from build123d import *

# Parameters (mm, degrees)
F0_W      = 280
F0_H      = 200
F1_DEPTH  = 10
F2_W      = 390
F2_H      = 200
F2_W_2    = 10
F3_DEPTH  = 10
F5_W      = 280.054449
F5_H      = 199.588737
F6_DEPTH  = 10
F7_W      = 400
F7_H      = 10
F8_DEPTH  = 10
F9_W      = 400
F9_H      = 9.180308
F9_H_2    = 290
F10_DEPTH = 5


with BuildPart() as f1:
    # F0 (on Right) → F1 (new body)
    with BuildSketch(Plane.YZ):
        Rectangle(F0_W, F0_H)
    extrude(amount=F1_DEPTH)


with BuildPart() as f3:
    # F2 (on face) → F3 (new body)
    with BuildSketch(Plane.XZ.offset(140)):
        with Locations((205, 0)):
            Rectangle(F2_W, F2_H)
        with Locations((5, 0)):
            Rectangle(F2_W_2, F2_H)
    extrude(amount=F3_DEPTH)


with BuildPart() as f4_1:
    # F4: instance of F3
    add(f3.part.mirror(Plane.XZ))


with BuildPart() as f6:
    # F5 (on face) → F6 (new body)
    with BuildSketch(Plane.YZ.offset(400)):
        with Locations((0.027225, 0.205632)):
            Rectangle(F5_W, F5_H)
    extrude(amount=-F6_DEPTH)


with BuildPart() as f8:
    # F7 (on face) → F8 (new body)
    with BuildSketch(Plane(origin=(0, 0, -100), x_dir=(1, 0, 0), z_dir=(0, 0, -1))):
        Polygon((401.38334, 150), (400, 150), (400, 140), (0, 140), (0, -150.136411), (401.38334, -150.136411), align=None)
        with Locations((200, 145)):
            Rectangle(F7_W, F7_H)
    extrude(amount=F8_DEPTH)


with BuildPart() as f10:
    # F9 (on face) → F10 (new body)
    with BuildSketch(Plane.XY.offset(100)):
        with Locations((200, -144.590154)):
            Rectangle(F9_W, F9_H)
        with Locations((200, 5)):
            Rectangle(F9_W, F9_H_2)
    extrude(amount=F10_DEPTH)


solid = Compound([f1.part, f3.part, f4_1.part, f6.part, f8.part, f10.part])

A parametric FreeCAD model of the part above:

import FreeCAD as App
import Part
import Sketcher

V = App.Vector


def add_polygon(sketch, points):
    """Adds a closed chain of lines whose ends are joined by coincident constraints."""
    first, n = sketch.GeometryCount, len(points)
    for a, b in zip(points, points[1:] + points[:1]):
        sketch.addGeometry(Part.LineSegment(App.Vector(*a, 0), App.Vector(*b, 0)), False)
    for i in range(n):
        sketch.addConstraint(Sketcher.Constraint("Coincident", first + i, 2, first + (i + 1) % n, 1))

doc = App.newDocument("Part")
body = doc.addObject("PartDesign::Body", "Body")

sketch1 = body.newObject("Sketcher::SketchObject", "Sketch")
sketch1.AttachmentSupport = (doc.getObject("YZ_Plane"), [""])
sketch1.MapMode = "FlatFace"
add_polygon(sketch1, [(-140, 100), (-140, -100), (140, -100), (140, 100)])
sketch1.addConstraint([
    Sketcher.Constraint("Vertical", 0),
    Sketcher.Constraint("Horizontal", 1),
    Sketcher.Constraint("Vertical", 2),
    Sketcher.Constraint("Horizontal", 3),
    Sketcher.Constraint("Symmetric", 0, 2, 2, 2, -1, 1),
    Sketcher.Constraint("DistanceX", 1, 1, 1, 2, 280.0),
    Sketcher.Constraint("DistanceY", 0, 2, 0, 1, 200.0),
])
pad1 = body.newObject("PartDesign::Pad", "Pad")
pad1.Profile = sketch1
pad1.Length = 10
body2 = doc.addObject("PartDesign::Body", "Body001")

sketch2 = body2.newObject("Sketcher::SketchObject", "Sketch001")
sketch2.AttachmentSupport = (doc.getObject("XZ_Plane001"), [""])
sketch2.MapMode = "FlatFace"
sketch2.AttachmentOffset = App.Placement(V(0, 0, 140), App.Rotation())
add_polygon(sketch2, [(400, -100), (400, 100), (0, 100), (0, -100)])
sketch2.addConstraint([
    Sketcher.Constraint("Vertical", 0),
    Sketcher.Constraint("Horizontal", 1),
    Sketcher.Constraint("Vertical", 2),
    Sketcher.Constraint("Horizontal", 3),
    Sketcher.Constraint("Symmetric", 1, 2, 2, 2, -1, 1),
    Sketcher.Constraint("DistanceX", 1, 2, 1, 1, 400.0),
    Sketcher.Constraint("DistanceY", 0, 1, 0, 2, 200.0),
])
pad2 = body2.newObject("PartDesign::Pad", "Pad001")
pad2.Profile = sketch2
pad2.Length = 10
body3 = doc.addObject("PartDesign::Body", "Body002")
doc.recompute()

mirroring = doc.addObject("Part::Mirroring", "Mirroring")
mirroring.Source = body2
mirroring.Base = V(0, 0, 0)
mirroring.Normal = V(0, -1, 0)
body3.BaseFeature = mirroring
doc.recompute()
body4 = doc.addObject("PartDesign::Body", "Body003")

sketch3 = body4.newObject("Sketcher::SketchObject", "Sketch002")
sketch3.AttachmentSupport = (doc.getObject("YZ_Plane003"), [""])
sketch3.MapMode = "FlatFace"
sketch3.AttachmentOffset = App.Placement(V(0, 0, 400), App.Rotation())
add_polygon(sketch3, [(-140, 100), (-140, -100), (140, -100), (140, 100)])
sketch3.addConstraint([
    Sketcher.Constraint("Vertical", 0),
    Sketcher.Constraint("Horizontal", 1),
    Sketcher.Constraint("Vertical", 2),
    Sketcher.Constraint("Horizontal", 3),
    Sketcher.Constraint("DistanceX", 0, 2, -1, 1, 140.0),
    Sketcher.Constraint("DistanceY", -1, 1, 2, 2, 100.0),
    Sketcher.Constraint("DistanceX", 1, 1, 1, 2, 280.054449),
    Sketcher.Constraint("DistanceY", 0, 2, 0, 1, 199.588737),
])
pad3 = body4.newObject("PartDesign::Pad", "Pad002")
pad3.Profile = sketch3
pad3.Length = 10
pad3.Reversed = True
body5 = doc.addObject("PartDesign::Body", "Body004")

sketch4 = body5.newObject("Sketcher::SketchObject", "Sketch003")
sketch4.AttachmentSupport = (doc.getObject("XY_Plane004"), [""])
sketch4.MapMode = "FlatFace"
sketch4.AttachmentOffset = App.Placement(V(0, 0, -100), App.Rotation())
add_polygon(sketch4, [(401, -150), (0, -150), (0, 150), (401, 150)])
sketch4.addConstraint([
    Sketcher.Constraint("Horizontal", 0),
    Sketcher.Constraint("Vertical", 1),
    Sketcher.Constraint("Horizontal", 2),
    Sketcher.Constraint("Vertical", 3),
    Sketcher.Constraint("PointOnObject", 0, 2, -2),
    Sketcher.Constraint("DistanceY", 0, 2, -1, 1, 150.0),
    Sketcher.Constraint("DistanceX", 0, 2, 0, 1, 401.38334),
    Sketcher.Constraint("DistanceY", 1, 1, 1, 2, 300.136411),
])
pad4 = body5.newObject("PartDesign::Pad", "Pad003")
pad4.Profile = sketch4
pad4.Length = 10
pad4.Reversed = True
body6 = doc.addObject("PartDesign::Body", "Body005")

sketch5 = body6.newObject("Sketcher::SketchObject", "Sketch004")
sketch5.AttachmentSupport = (doc.getObject("XY_Plane005"), [""])
sketch5.MapMode = "FlatFace"
sketch5.AttachmentOffset = App.Placement(V(0, 0, 100), App.Rotation())
add_polygon(sketch5, [(0, -149), (400, -149), (400, 150), (0, 150)])
sketch5.addConstraint([
    Sketcher.Constraint("Horizontal", 0),
    Sketcher.Constraint("Vertical", 1),
    Sketcher.Constraint("Horizontal", 2),
    Sketcher.Constraint("Vertical", 3),
    Sketcher.Constraint("PointOnObject", 2, 2, -2),
    Sketcher.Constraint("DistanceX", 0, 1, 0, 2, 400.0),
    Sketcher.Constraint("DistanceY", -1, 1, 1, 2, 150.0),
    Sketcher.Constraint("DistanceY", 1, 1, 1, 2, 299.180308),
])
pad5 = body6.newObject("PartDesign::Pad", "Pad004")
pad5.Profile = sketch5
pad5.Length = 5
mirroring.Visibility = False

doc.recompute()
